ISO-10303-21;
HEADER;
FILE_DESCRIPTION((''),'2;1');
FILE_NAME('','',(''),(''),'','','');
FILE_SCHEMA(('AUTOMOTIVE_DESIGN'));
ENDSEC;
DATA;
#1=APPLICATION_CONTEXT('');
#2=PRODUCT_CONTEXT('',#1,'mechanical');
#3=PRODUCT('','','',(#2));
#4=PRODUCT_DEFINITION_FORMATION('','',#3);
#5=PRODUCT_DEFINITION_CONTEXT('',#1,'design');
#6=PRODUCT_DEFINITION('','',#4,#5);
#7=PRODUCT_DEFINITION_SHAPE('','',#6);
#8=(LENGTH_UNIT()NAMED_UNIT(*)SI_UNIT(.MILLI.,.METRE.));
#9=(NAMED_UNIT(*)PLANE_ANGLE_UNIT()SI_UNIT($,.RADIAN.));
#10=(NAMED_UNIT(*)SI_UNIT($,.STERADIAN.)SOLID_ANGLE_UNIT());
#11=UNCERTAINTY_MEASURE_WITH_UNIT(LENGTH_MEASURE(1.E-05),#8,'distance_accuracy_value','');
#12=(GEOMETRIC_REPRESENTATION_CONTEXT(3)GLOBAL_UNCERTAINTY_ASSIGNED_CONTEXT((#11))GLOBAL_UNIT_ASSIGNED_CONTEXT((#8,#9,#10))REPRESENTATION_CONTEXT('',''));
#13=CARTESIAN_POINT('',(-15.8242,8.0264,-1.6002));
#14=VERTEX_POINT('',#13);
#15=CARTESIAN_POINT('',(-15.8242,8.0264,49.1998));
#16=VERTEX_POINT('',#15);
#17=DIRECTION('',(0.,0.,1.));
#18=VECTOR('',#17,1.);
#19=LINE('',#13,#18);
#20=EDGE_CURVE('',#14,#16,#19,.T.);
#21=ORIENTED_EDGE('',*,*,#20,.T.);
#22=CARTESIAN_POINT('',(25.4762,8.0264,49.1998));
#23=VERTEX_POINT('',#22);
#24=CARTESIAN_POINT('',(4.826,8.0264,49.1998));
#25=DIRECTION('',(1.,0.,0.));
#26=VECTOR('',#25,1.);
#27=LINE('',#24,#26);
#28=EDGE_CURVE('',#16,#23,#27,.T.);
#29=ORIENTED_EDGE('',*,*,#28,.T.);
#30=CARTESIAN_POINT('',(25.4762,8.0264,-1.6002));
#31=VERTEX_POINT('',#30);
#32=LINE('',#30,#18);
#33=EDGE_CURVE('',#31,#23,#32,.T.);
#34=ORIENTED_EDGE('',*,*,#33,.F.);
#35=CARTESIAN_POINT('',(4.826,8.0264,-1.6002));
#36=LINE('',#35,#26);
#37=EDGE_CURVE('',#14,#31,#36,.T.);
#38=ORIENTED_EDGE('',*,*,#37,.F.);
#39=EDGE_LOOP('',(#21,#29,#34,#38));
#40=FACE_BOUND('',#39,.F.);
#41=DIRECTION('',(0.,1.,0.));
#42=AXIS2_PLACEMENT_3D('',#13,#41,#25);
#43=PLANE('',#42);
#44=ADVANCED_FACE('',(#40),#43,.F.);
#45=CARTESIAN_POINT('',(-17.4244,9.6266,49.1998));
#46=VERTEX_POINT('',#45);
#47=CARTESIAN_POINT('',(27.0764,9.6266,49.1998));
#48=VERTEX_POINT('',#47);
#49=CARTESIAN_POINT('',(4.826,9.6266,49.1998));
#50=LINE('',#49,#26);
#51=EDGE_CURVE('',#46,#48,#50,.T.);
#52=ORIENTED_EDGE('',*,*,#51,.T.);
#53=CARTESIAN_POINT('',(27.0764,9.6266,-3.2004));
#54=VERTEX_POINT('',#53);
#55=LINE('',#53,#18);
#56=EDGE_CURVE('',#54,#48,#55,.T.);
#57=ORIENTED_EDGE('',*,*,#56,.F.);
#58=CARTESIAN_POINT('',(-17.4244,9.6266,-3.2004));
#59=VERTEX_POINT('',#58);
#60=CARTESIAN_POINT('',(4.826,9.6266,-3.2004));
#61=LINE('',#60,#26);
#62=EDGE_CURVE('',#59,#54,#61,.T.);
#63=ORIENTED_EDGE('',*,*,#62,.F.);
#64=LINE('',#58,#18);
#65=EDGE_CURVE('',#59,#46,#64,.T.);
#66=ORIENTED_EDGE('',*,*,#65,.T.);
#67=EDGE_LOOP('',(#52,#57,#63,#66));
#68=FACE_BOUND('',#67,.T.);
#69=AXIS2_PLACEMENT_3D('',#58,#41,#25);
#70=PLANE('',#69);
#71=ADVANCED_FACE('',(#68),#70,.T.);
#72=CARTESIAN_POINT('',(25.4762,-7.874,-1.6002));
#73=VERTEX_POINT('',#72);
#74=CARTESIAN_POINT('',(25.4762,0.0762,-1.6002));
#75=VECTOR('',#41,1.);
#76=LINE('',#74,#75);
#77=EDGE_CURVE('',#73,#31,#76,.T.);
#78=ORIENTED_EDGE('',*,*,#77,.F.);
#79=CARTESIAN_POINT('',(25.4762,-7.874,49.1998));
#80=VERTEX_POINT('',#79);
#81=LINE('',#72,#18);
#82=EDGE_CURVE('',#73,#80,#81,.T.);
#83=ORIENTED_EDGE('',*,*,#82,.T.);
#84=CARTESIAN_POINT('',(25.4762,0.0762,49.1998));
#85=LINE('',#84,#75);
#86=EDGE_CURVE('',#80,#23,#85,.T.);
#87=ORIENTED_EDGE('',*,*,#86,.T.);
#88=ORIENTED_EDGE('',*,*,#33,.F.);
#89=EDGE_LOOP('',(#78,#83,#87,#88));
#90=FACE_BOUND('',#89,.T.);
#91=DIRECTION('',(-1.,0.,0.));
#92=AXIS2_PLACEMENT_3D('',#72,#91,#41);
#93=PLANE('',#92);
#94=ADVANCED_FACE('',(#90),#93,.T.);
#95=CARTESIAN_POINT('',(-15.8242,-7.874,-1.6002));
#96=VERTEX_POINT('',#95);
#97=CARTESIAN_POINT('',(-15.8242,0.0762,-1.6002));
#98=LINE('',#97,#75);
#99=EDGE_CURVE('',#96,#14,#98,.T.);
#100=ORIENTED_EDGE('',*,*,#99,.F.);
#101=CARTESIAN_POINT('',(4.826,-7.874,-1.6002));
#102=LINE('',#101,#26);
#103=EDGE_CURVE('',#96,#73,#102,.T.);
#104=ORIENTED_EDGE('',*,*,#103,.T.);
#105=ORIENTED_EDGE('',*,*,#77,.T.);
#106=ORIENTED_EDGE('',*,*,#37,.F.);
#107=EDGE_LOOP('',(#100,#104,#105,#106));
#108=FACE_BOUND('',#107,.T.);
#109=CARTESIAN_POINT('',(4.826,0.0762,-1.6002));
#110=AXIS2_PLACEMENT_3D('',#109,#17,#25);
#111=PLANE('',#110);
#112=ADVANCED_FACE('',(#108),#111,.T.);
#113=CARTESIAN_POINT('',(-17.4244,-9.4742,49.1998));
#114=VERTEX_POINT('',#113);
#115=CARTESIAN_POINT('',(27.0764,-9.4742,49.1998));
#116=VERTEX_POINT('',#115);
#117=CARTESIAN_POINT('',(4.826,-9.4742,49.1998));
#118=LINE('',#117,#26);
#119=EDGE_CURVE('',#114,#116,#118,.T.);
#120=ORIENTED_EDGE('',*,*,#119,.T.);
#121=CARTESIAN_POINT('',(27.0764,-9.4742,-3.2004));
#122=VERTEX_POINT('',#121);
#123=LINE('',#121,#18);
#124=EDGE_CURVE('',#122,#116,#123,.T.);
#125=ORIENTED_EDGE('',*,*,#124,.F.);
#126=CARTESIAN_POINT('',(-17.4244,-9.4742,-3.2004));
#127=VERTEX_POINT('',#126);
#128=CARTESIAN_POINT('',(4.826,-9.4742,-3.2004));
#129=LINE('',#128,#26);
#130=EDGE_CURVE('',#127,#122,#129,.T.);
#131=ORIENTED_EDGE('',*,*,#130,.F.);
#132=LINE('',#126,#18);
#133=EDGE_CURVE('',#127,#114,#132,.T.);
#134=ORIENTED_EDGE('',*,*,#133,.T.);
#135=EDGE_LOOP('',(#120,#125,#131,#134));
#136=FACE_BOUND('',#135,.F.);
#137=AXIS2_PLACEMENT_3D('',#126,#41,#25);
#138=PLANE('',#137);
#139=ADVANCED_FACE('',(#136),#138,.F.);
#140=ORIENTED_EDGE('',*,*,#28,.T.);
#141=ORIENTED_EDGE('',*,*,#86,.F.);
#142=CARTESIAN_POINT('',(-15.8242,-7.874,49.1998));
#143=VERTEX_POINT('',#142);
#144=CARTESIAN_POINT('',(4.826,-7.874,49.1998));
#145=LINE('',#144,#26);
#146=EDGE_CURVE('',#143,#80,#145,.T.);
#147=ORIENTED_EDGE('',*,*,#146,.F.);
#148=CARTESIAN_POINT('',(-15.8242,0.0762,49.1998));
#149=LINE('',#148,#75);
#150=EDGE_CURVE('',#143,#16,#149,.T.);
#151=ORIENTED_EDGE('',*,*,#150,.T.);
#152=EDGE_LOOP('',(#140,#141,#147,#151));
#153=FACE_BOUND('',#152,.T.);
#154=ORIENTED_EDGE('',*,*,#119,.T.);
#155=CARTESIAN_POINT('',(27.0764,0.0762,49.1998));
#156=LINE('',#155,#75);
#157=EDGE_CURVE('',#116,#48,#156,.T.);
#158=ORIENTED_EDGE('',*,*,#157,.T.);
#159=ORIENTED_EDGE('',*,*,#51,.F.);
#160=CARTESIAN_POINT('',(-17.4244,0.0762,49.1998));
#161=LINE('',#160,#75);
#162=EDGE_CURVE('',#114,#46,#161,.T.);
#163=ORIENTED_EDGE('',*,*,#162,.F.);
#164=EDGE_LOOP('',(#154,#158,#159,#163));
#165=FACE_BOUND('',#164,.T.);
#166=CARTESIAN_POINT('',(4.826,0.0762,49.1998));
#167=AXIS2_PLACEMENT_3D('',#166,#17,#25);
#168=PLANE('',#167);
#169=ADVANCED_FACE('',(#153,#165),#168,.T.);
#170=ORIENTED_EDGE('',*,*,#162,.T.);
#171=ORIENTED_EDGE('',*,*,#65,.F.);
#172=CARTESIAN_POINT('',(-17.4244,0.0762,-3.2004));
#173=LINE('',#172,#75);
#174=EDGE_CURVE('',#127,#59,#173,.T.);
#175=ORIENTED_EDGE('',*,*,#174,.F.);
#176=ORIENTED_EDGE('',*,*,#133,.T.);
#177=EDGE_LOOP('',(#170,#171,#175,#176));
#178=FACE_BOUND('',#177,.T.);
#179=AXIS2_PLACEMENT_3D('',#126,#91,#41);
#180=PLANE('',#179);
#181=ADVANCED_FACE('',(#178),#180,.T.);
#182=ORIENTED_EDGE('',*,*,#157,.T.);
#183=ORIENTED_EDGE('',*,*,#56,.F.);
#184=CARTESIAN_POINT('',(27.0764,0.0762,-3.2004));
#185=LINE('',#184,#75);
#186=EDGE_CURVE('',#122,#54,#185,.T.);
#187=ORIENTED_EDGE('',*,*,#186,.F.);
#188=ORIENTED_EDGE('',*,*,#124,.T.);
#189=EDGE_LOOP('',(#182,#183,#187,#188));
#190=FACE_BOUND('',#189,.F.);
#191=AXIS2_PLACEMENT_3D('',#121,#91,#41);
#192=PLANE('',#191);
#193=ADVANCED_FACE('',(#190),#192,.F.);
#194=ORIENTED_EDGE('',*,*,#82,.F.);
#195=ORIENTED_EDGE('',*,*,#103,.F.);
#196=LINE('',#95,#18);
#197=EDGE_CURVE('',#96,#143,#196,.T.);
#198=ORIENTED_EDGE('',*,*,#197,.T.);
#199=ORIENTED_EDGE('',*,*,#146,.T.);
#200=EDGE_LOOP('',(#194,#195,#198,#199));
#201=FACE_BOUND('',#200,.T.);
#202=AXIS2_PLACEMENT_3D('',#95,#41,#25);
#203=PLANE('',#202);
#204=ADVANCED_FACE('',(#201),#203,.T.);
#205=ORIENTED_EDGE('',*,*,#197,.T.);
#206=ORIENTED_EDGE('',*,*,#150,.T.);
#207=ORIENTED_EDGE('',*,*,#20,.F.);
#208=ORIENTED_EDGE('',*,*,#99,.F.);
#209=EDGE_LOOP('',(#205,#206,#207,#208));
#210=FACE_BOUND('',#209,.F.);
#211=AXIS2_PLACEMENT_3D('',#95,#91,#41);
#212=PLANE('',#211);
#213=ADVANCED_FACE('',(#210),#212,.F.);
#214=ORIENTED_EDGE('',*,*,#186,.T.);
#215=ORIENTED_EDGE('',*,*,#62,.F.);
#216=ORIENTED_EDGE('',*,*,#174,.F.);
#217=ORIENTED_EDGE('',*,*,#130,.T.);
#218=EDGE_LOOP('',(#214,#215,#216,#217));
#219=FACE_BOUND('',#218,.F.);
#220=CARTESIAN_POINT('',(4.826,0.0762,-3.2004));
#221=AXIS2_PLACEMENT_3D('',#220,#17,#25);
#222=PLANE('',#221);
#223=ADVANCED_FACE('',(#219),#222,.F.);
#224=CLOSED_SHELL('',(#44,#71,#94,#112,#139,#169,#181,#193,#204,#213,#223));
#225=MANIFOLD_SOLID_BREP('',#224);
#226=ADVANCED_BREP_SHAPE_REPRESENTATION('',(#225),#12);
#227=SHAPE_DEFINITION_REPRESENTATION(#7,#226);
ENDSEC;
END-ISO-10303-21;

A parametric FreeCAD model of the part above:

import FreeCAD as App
import Part
import Sketcher
Q = App.Units.Quantity

doc = App.newDocument("Part")
params = doc.addObject("Spreadsheet::Sheet", "Params")
for row, (alias, value) in enumerate([
    ("sketch1_width", "1.626 in"),
    ("sketch1_height", "0.626 in"),
    ("pad1_length", "2 in"),
    ("sketch2_width", "1.752 in"),
    ("sketch2_height", "0.752 in"),
    ("pad2_length", "2.063 in"),
], start=1):
    params.set(f"A{row}", alias)
    params.set(f"B{row}", "=" + value)
    params.setAlias(f"B{row}", alias)

body = doc.addObject("PartDesign::Body", "Body")

sketch1 = doc.addObject("Sketcher::SketchObject", "Sketch")
body.addObject(sketch1)
sketch1.AttachmentSupport = (doc.XY_Plane, [""])
sketch1.MapMode = "FlatFace"
sketch1.AttachmentOffset = App.Placement(App.Vector(0, 0, -0.063 * 25.4), App.Rotation())
sketch1.addGeometry(Part.LineSegment(App.Vector(-16, 8, 0), App.Vector(-16, -8, 0)), False)
sketch1.addGeometry(Part.LineSegment(App.Vector(-16, -8, 0), App.Vector(25, -8, 0)), False)
sketch1.addGeometry(Part.LineSegment(App.Vector(25, -8, 0), App.Vector(25, 8, 0)), False)
sketch1.addGeometry(Part.LineSegment(App.Vector(25, 8, 0), App.Vector(-16, 8, 0)), False)
sketch1.addConstraint(Sketcher.Constraint("Coincident", 0, 2, 1, 1))
sketch1.addConstraint(Sketcher.Constraint("Coincident", 1, 2, 2, 1))
sketch1.addConstraint(Sketcher.Constraint("Coincident", 2, 2, 3, 1))
sketch1.addConstraint(Sketcher.Constraint("Coincident", 3, 2, 0, 1))
sketch1.addConstraint(Sketcher.Constraint("Vertical", 0))
sketch1.addConstraint(Sketcher.Constraint("Horizontal", 1))
sketch1.addConstraint(Sketcher.Constraint("Vertical", 2))
sketch1.addConstraint(Sketcher.Constraint("Horizontal", 3))
sketch1.addConstraint(Sketcher.Constraint("DistanceX", 1, 1, 1, 2, Q("1.626 in")))
sketch1.addConstraint(Sketcher.Constraint("DistanceY", 0, 2, 0, 1, Q("0.626 in")))
sketch1.addConstraint(Sketcher.Constraint("DistanceY", 0, 2, -1, 1, Q("0.31 in")))
sketch1.addConstraint(Sketcher.Constraint("DistanceX", 0, 2, -1, 1, Q("0.623 in")))
sketch1.setExpression("Constraints[8]", "Params.sketch1_width")
sketch1.setExpression("Constraints[9]", "Params.sketch1_height")
pad1 = doc.addObject("PartDesign::Pad", "Pad")
body.addObject(pad1)
pad1.Profile = sketch1
pad1.setExpression("Length", "Params.pad1_length")
body2 = doc.addObject("PartDesign::Body", "Body001")

sketch2 = doc.addObject("Sketcher::SketchObject", "Sketch001")
body2.addObject(sketch2)
sketch2.AttachmentSupport = (doc.getObject("XY_Plane001"), [""])
sketch2.MapMode = "FlatFace"
sketch2.AttachmentOffset = App.Placement(App.Vector(0, 0, -0.126 * 25.4), App.Rotation())
sketch2.addGeometry(Part.LineSegment(App.Vector(-17, 10, 0), App.Vector(-17, -9, 0)), False)
sketch2.addGeometry(Part.LineSegment(App.Vector(-17, -9, 0), App.Vector(27, -9, 0)), False)
sketch2.addGeometry(Part.LineSegment(App.Vector(27, -9, 0), App.Vector(27, 10, 0)), False)
sketch2.addGeometry(Part.LineSegment(App.Vector(27, 10, 0), App.Vector(-17, 10, 0)), False)
sketch2.addConstraint(Sketcher.Constraint("Coincident", 0, 2, 1, 1))
sketch2.addConstraint(Sketcher.Constraint("Coincident", 1, 2, 2, 1))
sketch2.addConstraint(Sketcher.Constraint("Coincident", 2, 2, 3, 1))
sketch2.addConstraint(Sketcher.Constraint("Coincident", 3, 2, 0, 1))
sketch2.addConstraint(Sketcher.Constraint("Vertical", 0))
sketch2.addConstraint(Sketcher.Constraint("Horizontal", 1))
sketch2.addConstraint(Sketcher.Constraint("Vertical", 2))
sketch2.addConstraint(Sketcher.Constraint("Horizontal", 3))
sketch2.addConstraint(Sketcher.Constraint("DistanceX", 1, 1, 1, 2, Q("1.752 in")))
sketch2.addConstraint(Sketcher.Constraint("DistanceY", 0, 2, 0, 1, Q("0.752 in")))
sketch2.addConstraint(Sketcher.Constraint("DistanceX", 0, 2, -1, 1, Q("0.686 in")))
sketch2.addConstraint(Sketcher.Constraint("DistanceY", 0, 2, -1, 1, Q("0.373 in")))
sketch2.setExpression("Constraints[8]", "Params.sketch2_width")
sketch2.setExpression("Constraints[9]", "Params.sketch2_height")
pad2 = doc.addObject("PartDesign::Pad", "Pad001")
body2.addObject(pad2)
pad2.Profile = sketch2
pad2.setExpression("Length", "Params.pad2_length")
doc.recompute()

boolean = doc.addObject("PartDesign::Boolean", "Boolean")
body2.addObject(boolean)
boolean.Type = "Cut"
boolean.addObjects([body])

doc.recompute()
